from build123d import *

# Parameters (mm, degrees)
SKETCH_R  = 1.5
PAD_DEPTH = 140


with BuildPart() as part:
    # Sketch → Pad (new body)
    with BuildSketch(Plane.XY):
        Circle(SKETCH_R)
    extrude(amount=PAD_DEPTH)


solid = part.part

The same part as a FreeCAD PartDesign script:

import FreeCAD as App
import Part
import Sketcher

doc = App.newDocument("Part")
body = doc.addObject("PartDesign::Body", "Body")

# Sketch on XY plane
sketch1 = body.newObject("Sketcher::SketchObject", "Sketch")
sketch1.AttachmentSupport = (doc.getObject("XY_Plane"), [""])
sketch1.MapMode = "FlatFace"
sketch1.addGeometry(Part.Circle(App.Vector(0, 0, 0), App.Vector(0, 0, 1), 1.5), False)
sketch1.addConstraint(Sketcher.Constraint("Coincident", 0, 3, -1, 1))
sketch1.addConstraint(Sketcher.Constraint("Diameter", 0, 3.0))
pad1 = body.newObject("PartDesign::Pad", "Pad")
pad1.Profile = sketch1
pad1.Length = 140

doc.recompute()
